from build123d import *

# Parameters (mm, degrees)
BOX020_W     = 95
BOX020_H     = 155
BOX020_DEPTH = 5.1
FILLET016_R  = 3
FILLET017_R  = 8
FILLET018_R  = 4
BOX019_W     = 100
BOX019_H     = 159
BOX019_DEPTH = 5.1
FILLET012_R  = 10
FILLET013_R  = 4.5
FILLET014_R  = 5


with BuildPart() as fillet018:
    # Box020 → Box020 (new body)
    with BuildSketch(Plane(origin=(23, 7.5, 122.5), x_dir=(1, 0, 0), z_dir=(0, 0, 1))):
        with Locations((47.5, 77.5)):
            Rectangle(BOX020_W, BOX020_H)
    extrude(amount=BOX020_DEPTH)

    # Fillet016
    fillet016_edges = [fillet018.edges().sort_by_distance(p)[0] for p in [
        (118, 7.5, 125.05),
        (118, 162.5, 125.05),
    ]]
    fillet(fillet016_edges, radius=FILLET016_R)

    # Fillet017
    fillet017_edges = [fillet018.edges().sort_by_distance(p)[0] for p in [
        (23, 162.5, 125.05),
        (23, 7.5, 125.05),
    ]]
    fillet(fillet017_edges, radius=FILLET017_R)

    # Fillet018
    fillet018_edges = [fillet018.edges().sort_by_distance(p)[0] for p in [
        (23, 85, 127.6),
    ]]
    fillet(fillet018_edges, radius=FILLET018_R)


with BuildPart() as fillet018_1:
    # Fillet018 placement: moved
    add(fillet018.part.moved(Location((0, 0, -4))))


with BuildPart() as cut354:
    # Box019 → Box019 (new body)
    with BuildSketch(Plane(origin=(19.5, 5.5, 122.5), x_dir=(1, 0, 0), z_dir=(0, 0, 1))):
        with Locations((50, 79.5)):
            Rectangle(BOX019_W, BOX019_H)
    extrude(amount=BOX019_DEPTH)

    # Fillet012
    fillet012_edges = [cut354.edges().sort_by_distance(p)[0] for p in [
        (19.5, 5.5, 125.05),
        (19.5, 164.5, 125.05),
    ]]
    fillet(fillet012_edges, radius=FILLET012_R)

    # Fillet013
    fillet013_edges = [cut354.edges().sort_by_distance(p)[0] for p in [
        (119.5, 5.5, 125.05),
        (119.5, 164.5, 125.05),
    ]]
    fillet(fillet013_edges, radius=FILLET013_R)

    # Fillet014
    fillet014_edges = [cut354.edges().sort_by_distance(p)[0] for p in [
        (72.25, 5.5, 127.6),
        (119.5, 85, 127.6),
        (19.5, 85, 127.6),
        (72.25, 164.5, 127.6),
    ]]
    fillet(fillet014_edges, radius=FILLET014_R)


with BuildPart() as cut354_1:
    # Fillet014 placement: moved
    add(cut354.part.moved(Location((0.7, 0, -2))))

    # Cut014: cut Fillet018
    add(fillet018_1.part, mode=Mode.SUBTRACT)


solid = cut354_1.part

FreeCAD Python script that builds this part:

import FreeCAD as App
import Part
import Sketcher

V = App.Vector


def edges_at(feature, points):
    """Names of the edges that pass closest to the given points."""
    edges = feature.Shape.Edges
    near = lambda p: min(range(len(edges)), key=lambda i: edges[i].distToShape(Part.Vertex(*p))[0])
    return sorted({f"Edge{near(p) + 1}" for p in points})


def add_polygon(sketch, points):
    """Adds a closed chain of lines whose ends are joined by coincident constraints."""
    first, n = sketch.GeometryCount, len(points)
    for a, b in zip(points, points[1:] + points[:1]):
        sketch.addGeometry(Part.LineSegment(App.Vector(*a, 0), App.Vector(*b, 0)), False)
    for i in range(n):
        sketch.addConstraint(Sketcher.Constraint("Coincident", first + i, 2, first + (i + 1) % n, 1))

doc = App.newDocument("Part")
body = doc.addObject("PartDesign::Body", "Body")

# Sketch on XY plane
sketch1 = body.newObject("Sketcher::SketchObject", "Sketch")
sketch1.AttachmentSupport = (doc.getObject("XY_Plane"), [""])
sketch1.MapMode = "FlatFace"
sketch1.AttachmentOffset = App.Placement(V(0, 0, 122.5), App.Rotation())
add_polygon(sketch1, [(23, 162), (23, 8), (118, 8), (118, 162)])  # lines 0-3
sketch1.addConstraint(Sketcher.Constraint("Vertical", 0))
sketch1.addConstraint(Sketcher.Constraint("Horizontal", 1))
sketch1.addConstraint(Sketcher.Constraint("Vertical", 2))
sketch1.addConstraint(Sketcher.Constraint("Horizontal", 3))
sketch1.addConstraint(Sketcher.Constraint("DistanceX", 1, 1, 1, 2, 95.0))
sketch1.addConstraint(Sketcher.Constraint("DistanceY", 0, 2, 0, 1, 155.0))
sketch1.addConstraint(Sketcher.Constraint("DistanceX", -1, 1, 0, 2, 23.0))
sketch1.addConstraint(Sketcher.Constraint("DistanceY", -1, 1, 0, 2, 7.5))
pad1 = body.newObject("PartDesign::Pad", "Pad")
pad1.Profile = sketch1
pad1.Length = 5.1
doc.recompute()

fillet = body.newObject("PartDesign::Fillet", "Fillet")
fillet.Base = (pad1, edges_at(pad1, [(118, 7.5, 125.05), (118, 162.5, 125.05)]))
fillet.Radius = 3
doc.recompute()

fillet2 = body.newObject("PartDesign::Fillet", "Fillet001")
fillet2.Base = (fillet, edges_at(fillet, [(23, 162.5, 125.05), (23, 7.5, 125.05)]))
fillet2.Radius = 8
doc.recompute()

fillet3 = body.newObject("PartDesign::Fillet", "Fillet002")
fillet3.Base = (fillet2, edges_at(fillet2, [(23, 85, 127.6)]))
fillet3.Radius = 4
body2 = doc.addObject("PartDesign::Body", "Body001")
doc.recompute()

body.Placement = App.Placement(V(0, 0, -4), App.Rotation(V(0, 0, 1), 0))
boolean = body2.newObject("PartDesign::Boolean", "Boolean")
boolean.Type = "Fuse"
boolean.addObjects([body])
body3 = doc.addObject("PartDesign::Body", "Body002")

# Sketch on XY plane
sketch2 = body3.newObject("Sketcher::SketchObject", "Sketch001")
sketch2.AttachmentSupport = (doc.getObject("XY_Plane002"), [""])
sketch2.MapMode = "FlatFace"
sketch2.AttachmentOffset = App.Placement(V(0, 0, 122.5), App.Rotation())
add_polygon(sketch2, [(20, 164), (20, 6), (120, 6), (120, 164)])  # lines 0-3
sketch2.addConstraint(Sketcher.Constraint("Vertical", 0))
sketch2.addConstraint(Sketcher.Constraint("Horizontal", 1))
sketch2.addConstraint(Sketcher.Constraint("Vertical", 2))
sketch2.addConstraint(Sketcher.Constraint("Horizontal", 3))
sketch2.addConstraint(Sketcher.Constraint("DistanceX", 1, 1, 1, 2, 100.0))
sketch2.addConstraint(Sketcher.Constraint("DistanceY", 0, 2, 0, 1, 159.0))
sketch2.addConstraint(Sketcher.Constraint("DistanceX", -1, 1, 0, 2, 19.5))
sketch2.addConstraint(Sketcher.Constraint("DistanceY", -1, 1, 0, 2, 5.5))
pad2 = body3.newObject("PartDesign::Pad", "Pad001")
pad2.Profile = sketch2
pad2.Length = 5.1
doc.recompute()

fillet4 = body3.newObject("PartDesign::Fillet", "Fillet003")
fillet4.Base = (pad2, edges_at(pad2, [(19.5, 5.5, 125.05), (19.5, 164.5, 125.05)]))
fillet4.Radius = 10
doc.recompute()

fillet5 = body3.newObject("PartDesign::Fillet", "Fillet004")
fillet5.Base = (fillet4, edges_at(fillet4, [(119.5, 5.5, 125.05), (119.5, 164.5, 125.05)]))
fillet5.Radius = 4.5
doc.recompute()

fillet6 = body3.newObject("PartDesign::Fillet", "Fillet005")
fillet6.Base = (fillet5, edges_at(fillet5, [
    (72.25, 5.5, 127.6),
    (119.5, 85, 127.6),
    (19.5, 85, 127.6),
    (72.25, 164.5, 127.6),
]))
fillet6.Radius = 5
body4 = doc.addObject("PartDesign::Body", "Body003")
doc.recompute()

body3.Placement = App.Placement(V(0.7, 0, -2), App.Rotation(V(0, 0, 1), 0))
boolean2 = body4.newObject("PartDesign::Boolean", "Boolean001")
boolean2.Type = "Fuse"
boolean2.addObjects([body3])
doc.recompute()

boolean3 = body4.newObject("PartDesign::Boolean", "Boolean002")
boolean3.Type = "Cut"
boolean3.addObjects([body2])

doc.recompute()
